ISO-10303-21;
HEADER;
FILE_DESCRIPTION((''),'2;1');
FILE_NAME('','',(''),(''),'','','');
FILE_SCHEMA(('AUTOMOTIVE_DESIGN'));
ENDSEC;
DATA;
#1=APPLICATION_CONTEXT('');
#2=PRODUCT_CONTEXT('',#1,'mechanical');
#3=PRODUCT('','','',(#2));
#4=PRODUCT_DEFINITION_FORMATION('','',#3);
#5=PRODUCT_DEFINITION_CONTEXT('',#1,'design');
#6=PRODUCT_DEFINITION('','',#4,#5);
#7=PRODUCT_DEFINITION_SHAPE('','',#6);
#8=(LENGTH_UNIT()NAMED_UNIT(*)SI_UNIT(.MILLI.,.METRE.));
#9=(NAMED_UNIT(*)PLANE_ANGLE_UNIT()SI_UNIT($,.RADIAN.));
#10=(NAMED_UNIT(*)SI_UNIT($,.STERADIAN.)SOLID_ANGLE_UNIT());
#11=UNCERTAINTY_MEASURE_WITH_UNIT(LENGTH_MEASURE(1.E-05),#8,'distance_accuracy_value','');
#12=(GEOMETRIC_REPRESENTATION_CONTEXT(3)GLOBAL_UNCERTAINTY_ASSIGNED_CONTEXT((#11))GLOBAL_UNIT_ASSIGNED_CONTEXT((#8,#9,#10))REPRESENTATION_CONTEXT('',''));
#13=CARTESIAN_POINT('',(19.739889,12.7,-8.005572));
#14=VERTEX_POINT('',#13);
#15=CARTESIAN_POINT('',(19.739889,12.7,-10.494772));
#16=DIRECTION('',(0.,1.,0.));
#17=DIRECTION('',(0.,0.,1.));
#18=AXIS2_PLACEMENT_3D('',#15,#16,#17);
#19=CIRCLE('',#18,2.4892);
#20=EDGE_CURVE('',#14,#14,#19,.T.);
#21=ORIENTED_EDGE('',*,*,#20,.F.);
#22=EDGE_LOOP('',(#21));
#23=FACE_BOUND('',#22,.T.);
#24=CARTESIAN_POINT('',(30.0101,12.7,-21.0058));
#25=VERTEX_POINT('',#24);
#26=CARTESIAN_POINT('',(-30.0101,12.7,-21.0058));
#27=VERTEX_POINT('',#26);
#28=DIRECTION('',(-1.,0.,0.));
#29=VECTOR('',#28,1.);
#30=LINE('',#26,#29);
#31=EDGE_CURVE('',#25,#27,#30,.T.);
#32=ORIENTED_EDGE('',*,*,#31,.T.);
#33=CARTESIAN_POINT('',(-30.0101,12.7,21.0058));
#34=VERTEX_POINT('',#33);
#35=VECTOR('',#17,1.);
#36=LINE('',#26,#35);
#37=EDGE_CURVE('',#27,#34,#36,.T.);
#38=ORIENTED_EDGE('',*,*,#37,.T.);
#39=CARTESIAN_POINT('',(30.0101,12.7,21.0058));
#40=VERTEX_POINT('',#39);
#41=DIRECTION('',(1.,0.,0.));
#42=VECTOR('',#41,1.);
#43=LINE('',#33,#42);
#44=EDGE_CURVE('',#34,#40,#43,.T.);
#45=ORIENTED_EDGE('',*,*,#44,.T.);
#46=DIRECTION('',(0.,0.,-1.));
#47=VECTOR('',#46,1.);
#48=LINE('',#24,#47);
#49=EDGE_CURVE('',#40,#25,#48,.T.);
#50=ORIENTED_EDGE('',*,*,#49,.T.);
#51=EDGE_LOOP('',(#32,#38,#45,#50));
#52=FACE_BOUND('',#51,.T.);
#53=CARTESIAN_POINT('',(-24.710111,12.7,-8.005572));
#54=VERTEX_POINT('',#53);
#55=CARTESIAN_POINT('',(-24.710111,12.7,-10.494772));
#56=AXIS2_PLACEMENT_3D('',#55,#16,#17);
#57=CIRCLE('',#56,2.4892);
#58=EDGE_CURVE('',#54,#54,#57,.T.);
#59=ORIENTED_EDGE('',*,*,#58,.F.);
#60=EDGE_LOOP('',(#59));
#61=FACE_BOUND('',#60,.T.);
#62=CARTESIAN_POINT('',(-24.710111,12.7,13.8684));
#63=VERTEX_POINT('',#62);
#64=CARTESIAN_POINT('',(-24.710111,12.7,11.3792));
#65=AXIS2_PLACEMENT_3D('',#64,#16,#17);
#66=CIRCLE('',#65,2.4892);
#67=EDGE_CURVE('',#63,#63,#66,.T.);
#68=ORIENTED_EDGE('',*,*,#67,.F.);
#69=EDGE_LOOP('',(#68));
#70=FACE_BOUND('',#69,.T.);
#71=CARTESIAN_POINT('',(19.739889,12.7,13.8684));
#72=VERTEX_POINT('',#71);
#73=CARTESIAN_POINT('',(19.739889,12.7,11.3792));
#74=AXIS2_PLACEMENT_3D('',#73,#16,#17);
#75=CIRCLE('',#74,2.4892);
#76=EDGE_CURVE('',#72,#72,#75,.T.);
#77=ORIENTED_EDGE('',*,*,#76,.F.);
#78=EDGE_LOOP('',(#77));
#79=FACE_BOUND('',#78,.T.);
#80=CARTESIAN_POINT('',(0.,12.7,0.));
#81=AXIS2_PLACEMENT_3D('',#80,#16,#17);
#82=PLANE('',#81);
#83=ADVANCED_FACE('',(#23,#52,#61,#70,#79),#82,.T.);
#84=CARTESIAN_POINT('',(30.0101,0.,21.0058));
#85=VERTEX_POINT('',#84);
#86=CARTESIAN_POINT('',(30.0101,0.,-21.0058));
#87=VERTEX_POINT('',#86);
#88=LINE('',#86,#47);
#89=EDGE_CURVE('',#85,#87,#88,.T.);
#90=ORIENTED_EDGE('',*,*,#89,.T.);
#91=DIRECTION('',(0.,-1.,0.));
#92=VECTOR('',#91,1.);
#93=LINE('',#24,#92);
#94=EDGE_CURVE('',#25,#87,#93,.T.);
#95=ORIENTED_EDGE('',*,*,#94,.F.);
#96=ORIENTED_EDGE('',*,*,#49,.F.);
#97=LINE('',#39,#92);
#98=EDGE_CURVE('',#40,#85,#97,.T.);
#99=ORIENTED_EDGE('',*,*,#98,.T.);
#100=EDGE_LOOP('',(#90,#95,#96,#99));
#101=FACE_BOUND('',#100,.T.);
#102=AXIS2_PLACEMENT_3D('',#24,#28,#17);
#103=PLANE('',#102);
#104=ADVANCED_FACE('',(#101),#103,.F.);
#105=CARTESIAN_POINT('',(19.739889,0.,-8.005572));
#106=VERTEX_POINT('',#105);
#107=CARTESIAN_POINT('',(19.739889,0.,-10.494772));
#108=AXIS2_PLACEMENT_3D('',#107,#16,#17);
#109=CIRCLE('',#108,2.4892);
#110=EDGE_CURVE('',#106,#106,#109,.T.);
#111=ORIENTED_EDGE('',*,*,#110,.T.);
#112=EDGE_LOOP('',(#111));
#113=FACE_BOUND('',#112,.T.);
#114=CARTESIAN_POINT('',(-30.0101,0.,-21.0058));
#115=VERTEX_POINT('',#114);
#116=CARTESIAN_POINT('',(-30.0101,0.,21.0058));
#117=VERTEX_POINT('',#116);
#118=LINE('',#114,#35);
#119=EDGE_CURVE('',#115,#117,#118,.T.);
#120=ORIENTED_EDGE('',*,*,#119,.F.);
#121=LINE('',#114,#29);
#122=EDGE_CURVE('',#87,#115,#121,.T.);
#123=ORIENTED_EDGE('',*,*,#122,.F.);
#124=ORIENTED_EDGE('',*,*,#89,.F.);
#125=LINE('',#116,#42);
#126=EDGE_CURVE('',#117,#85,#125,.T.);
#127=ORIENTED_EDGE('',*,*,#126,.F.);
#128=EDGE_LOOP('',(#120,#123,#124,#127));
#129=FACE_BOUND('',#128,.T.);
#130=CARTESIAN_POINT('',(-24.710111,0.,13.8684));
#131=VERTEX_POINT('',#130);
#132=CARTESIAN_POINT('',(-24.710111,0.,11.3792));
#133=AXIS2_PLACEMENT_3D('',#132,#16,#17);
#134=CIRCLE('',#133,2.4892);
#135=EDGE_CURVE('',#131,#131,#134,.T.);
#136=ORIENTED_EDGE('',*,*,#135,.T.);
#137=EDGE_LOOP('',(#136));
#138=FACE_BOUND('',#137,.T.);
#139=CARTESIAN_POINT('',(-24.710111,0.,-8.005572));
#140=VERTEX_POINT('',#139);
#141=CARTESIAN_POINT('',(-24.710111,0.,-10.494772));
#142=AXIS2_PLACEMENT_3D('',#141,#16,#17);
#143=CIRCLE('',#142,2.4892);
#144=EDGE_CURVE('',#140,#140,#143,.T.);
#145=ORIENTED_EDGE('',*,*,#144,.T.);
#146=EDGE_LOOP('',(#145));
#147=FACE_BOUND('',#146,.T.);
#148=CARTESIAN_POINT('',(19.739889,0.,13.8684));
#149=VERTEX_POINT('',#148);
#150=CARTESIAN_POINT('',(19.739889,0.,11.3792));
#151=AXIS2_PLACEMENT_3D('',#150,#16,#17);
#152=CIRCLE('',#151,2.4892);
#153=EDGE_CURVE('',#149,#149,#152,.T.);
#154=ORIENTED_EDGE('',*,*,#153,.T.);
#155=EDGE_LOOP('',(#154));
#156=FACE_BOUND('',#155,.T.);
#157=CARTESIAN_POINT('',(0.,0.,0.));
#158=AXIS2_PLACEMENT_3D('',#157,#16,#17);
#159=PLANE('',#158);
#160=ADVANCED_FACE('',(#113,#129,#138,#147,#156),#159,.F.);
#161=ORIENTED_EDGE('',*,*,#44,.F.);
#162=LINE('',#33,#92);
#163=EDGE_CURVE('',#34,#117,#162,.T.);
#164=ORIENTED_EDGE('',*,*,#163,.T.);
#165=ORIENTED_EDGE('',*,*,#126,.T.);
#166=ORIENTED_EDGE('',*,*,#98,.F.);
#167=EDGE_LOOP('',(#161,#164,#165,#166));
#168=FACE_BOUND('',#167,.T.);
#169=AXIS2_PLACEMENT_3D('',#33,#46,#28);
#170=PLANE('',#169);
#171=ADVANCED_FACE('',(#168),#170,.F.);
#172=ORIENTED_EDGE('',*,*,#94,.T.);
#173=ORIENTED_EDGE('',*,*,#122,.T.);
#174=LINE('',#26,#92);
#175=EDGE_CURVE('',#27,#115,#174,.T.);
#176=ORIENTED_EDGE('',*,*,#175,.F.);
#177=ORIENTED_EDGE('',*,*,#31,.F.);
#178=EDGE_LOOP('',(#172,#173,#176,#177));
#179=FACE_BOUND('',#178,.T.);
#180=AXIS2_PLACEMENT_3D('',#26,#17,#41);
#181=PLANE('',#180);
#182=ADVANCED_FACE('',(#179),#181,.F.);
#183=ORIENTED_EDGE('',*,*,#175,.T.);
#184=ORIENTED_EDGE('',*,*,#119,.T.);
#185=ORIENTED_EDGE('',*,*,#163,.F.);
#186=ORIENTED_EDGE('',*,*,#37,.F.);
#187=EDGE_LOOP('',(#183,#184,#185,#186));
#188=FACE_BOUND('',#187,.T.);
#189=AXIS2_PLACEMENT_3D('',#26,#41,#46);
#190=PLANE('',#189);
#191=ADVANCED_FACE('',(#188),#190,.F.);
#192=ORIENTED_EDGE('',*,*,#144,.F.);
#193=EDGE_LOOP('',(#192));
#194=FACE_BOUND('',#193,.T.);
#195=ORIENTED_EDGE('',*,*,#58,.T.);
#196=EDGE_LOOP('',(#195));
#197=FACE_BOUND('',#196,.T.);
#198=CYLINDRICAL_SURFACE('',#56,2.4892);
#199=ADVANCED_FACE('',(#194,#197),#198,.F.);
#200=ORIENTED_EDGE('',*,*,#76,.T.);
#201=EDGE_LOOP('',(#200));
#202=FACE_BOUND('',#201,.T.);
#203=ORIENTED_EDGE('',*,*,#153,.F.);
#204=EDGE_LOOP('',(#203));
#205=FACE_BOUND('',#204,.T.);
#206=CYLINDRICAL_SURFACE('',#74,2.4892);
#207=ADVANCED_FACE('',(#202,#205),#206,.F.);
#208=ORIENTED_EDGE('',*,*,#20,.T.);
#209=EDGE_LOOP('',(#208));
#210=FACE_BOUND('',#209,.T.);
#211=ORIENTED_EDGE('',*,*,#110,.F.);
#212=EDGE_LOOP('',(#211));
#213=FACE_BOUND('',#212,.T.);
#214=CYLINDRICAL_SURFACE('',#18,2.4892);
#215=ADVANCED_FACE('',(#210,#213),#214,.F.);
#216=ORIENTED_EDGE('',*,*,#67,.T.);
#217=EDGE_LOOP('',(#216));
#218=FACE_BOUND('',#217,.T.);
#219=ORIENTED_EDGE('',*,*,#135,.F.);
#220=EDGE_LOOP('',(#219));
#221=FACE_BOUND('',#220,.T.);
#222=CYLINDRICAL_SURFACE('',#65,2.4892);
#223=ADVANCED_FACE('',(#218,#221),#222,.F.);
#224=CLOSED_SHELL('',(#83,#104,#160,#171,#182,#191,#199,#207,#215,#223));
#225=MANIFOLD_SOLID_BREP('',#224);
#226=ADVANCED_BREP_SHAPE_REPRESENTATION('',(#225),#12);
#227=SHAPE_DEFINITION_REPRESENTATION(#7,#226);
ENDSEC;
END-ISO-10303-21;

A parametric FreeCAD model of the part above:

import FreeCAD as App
import Part
import Sketcher
from FreeCAD import Vector
Q = App.Units.Quantity


def add_polygon(sketch, points):
    """Adds a closed chain of lines whose ends are joined by coincident constraints."""
    first, n = sketch.GeometryCount, len(points)
    for a, b in zip(points, points[1:] + points[:1]):
        sketch.addGeometry(Part.LineSegment(App.Vector(*a, 0), App.Vector(*b, 0)), False)
    for i in range(n):
        sketch.addConstraint(Sketcher.Constraint("Coincident", first + i, 2, first + (i + 1) % n, 1))

doc = App.newDocument("Part")
body = doc.addObject("PartDesign::Body", "Body")

# Sketch on XZ plane
sketch1 = body.newObject("Sketcher::SketchObject", "Sketch")
sketch1.AttachmentSupport = (doc.getObject("XZ_Plane"), [""])
sketch1.MapMode = "FlatFace"
add_polygon(sketch1, [(-30.0101, -21.0058), (-30.0101, 21.0058), (30.0101, 21.0058), (30.0101, -21.0058)])  # lines 0-3
sketch1.addConstraint([
    Sketcher.Constraint("Vertical", 0),
    Sketcher.Constraint("Horizontal", 1),
    Sketcher.Constraint("Vertical", 2),
    Sketcher.Constraint("Horizontal", 3),
    Sketcher.Constraint("Symmetric", 0, 2, 2, 2, -1, 1),
    Sketcher.Constraint("DistanceX", 1, 1, 1, 2, Q("2.363 in")),
    Sketcher.Constraint("DistanceY", 0, 1, 0, 2, Q("1.654 in")),
])
pad1 = body.newObject("PartDesign::Pad", "Pad")
pad1.Profile = sketch1
pad1.Length = Q("0.5 in")
pad1.Reversed = True

# Sketch on XZ plane
sketch2 = body.newObject("Sketcher::SketchObject", "Sketch001")
sketch2.AttachmentSupport = (doc.getObject("XZ_Plane"), [""])
sketch2.MapMode = "FlatFace"
sketch2.AttachmentOffset = App.Placement(Vector(0, 0, -0.5 * 25.4), App.Rotation())
sketch2.addGeometry([
    Part.Circle(Vector(-24.710111, -10.494772, 0), Vector(0, 0, 1), 2.4892),
    Part.Circle(Vector(-24.710111, 11.3792, 0), Vector(0, 0, 1), 2.4892),
    Part.Circle(Vector(19.739889, 11.3792, 0), Vector(0, 0, 1), 2.4892),
    Part.Circle(Vector(19.739889, -10.494772, 0), Vector(0, 0, 1), 2.4892),
], False)
sketch2.addConstraint([
    Sketcher.Constraint("Equal", 0, 1),
    Sketcher.Constraint("Equal", 1, 2),
    Sketcher.Constraint("Equal", 2, 3),
    Sketcher.Constraint("Horizontal", 1, 3, 2, 3),
    Sketcher.Constraint("Horizontal", 0, 3, 3, 3),
    Sketcher.Constraint("Vertical", 0, 3, 1, 3),
    Sketcher.Constraint("Vertical", 2, 3, 3, 3),
    Sketcher.Constraint("Diameter", 0, Q("0.196 in")),
    Sketcher.Constraint("DistanceX", 1, 3, 2, 3, Q("1.75 in")),
    Sketcher.Constraint("DistanceY", -1, 1, 1, 3, Q("0.448 in")),
    Sketcher.Constraint("DistanceX", 0, 3, -1, 1, Q("24.710111 mm")),
    Sketcher.Constraint("DistanceY", 0, 3, -1, 1, Q("10.494772 mm")),
])
doc.recompute()
hole = body.newObject("PartDesign::Hole", "Hole")
hole.Profile = sketch2
hole.ThreadType = "None"
hole.Diameter = Q("0.196 in")
hole.DepthType = "ThroughAll"
hole.Reversed = True

doc.recompute()
